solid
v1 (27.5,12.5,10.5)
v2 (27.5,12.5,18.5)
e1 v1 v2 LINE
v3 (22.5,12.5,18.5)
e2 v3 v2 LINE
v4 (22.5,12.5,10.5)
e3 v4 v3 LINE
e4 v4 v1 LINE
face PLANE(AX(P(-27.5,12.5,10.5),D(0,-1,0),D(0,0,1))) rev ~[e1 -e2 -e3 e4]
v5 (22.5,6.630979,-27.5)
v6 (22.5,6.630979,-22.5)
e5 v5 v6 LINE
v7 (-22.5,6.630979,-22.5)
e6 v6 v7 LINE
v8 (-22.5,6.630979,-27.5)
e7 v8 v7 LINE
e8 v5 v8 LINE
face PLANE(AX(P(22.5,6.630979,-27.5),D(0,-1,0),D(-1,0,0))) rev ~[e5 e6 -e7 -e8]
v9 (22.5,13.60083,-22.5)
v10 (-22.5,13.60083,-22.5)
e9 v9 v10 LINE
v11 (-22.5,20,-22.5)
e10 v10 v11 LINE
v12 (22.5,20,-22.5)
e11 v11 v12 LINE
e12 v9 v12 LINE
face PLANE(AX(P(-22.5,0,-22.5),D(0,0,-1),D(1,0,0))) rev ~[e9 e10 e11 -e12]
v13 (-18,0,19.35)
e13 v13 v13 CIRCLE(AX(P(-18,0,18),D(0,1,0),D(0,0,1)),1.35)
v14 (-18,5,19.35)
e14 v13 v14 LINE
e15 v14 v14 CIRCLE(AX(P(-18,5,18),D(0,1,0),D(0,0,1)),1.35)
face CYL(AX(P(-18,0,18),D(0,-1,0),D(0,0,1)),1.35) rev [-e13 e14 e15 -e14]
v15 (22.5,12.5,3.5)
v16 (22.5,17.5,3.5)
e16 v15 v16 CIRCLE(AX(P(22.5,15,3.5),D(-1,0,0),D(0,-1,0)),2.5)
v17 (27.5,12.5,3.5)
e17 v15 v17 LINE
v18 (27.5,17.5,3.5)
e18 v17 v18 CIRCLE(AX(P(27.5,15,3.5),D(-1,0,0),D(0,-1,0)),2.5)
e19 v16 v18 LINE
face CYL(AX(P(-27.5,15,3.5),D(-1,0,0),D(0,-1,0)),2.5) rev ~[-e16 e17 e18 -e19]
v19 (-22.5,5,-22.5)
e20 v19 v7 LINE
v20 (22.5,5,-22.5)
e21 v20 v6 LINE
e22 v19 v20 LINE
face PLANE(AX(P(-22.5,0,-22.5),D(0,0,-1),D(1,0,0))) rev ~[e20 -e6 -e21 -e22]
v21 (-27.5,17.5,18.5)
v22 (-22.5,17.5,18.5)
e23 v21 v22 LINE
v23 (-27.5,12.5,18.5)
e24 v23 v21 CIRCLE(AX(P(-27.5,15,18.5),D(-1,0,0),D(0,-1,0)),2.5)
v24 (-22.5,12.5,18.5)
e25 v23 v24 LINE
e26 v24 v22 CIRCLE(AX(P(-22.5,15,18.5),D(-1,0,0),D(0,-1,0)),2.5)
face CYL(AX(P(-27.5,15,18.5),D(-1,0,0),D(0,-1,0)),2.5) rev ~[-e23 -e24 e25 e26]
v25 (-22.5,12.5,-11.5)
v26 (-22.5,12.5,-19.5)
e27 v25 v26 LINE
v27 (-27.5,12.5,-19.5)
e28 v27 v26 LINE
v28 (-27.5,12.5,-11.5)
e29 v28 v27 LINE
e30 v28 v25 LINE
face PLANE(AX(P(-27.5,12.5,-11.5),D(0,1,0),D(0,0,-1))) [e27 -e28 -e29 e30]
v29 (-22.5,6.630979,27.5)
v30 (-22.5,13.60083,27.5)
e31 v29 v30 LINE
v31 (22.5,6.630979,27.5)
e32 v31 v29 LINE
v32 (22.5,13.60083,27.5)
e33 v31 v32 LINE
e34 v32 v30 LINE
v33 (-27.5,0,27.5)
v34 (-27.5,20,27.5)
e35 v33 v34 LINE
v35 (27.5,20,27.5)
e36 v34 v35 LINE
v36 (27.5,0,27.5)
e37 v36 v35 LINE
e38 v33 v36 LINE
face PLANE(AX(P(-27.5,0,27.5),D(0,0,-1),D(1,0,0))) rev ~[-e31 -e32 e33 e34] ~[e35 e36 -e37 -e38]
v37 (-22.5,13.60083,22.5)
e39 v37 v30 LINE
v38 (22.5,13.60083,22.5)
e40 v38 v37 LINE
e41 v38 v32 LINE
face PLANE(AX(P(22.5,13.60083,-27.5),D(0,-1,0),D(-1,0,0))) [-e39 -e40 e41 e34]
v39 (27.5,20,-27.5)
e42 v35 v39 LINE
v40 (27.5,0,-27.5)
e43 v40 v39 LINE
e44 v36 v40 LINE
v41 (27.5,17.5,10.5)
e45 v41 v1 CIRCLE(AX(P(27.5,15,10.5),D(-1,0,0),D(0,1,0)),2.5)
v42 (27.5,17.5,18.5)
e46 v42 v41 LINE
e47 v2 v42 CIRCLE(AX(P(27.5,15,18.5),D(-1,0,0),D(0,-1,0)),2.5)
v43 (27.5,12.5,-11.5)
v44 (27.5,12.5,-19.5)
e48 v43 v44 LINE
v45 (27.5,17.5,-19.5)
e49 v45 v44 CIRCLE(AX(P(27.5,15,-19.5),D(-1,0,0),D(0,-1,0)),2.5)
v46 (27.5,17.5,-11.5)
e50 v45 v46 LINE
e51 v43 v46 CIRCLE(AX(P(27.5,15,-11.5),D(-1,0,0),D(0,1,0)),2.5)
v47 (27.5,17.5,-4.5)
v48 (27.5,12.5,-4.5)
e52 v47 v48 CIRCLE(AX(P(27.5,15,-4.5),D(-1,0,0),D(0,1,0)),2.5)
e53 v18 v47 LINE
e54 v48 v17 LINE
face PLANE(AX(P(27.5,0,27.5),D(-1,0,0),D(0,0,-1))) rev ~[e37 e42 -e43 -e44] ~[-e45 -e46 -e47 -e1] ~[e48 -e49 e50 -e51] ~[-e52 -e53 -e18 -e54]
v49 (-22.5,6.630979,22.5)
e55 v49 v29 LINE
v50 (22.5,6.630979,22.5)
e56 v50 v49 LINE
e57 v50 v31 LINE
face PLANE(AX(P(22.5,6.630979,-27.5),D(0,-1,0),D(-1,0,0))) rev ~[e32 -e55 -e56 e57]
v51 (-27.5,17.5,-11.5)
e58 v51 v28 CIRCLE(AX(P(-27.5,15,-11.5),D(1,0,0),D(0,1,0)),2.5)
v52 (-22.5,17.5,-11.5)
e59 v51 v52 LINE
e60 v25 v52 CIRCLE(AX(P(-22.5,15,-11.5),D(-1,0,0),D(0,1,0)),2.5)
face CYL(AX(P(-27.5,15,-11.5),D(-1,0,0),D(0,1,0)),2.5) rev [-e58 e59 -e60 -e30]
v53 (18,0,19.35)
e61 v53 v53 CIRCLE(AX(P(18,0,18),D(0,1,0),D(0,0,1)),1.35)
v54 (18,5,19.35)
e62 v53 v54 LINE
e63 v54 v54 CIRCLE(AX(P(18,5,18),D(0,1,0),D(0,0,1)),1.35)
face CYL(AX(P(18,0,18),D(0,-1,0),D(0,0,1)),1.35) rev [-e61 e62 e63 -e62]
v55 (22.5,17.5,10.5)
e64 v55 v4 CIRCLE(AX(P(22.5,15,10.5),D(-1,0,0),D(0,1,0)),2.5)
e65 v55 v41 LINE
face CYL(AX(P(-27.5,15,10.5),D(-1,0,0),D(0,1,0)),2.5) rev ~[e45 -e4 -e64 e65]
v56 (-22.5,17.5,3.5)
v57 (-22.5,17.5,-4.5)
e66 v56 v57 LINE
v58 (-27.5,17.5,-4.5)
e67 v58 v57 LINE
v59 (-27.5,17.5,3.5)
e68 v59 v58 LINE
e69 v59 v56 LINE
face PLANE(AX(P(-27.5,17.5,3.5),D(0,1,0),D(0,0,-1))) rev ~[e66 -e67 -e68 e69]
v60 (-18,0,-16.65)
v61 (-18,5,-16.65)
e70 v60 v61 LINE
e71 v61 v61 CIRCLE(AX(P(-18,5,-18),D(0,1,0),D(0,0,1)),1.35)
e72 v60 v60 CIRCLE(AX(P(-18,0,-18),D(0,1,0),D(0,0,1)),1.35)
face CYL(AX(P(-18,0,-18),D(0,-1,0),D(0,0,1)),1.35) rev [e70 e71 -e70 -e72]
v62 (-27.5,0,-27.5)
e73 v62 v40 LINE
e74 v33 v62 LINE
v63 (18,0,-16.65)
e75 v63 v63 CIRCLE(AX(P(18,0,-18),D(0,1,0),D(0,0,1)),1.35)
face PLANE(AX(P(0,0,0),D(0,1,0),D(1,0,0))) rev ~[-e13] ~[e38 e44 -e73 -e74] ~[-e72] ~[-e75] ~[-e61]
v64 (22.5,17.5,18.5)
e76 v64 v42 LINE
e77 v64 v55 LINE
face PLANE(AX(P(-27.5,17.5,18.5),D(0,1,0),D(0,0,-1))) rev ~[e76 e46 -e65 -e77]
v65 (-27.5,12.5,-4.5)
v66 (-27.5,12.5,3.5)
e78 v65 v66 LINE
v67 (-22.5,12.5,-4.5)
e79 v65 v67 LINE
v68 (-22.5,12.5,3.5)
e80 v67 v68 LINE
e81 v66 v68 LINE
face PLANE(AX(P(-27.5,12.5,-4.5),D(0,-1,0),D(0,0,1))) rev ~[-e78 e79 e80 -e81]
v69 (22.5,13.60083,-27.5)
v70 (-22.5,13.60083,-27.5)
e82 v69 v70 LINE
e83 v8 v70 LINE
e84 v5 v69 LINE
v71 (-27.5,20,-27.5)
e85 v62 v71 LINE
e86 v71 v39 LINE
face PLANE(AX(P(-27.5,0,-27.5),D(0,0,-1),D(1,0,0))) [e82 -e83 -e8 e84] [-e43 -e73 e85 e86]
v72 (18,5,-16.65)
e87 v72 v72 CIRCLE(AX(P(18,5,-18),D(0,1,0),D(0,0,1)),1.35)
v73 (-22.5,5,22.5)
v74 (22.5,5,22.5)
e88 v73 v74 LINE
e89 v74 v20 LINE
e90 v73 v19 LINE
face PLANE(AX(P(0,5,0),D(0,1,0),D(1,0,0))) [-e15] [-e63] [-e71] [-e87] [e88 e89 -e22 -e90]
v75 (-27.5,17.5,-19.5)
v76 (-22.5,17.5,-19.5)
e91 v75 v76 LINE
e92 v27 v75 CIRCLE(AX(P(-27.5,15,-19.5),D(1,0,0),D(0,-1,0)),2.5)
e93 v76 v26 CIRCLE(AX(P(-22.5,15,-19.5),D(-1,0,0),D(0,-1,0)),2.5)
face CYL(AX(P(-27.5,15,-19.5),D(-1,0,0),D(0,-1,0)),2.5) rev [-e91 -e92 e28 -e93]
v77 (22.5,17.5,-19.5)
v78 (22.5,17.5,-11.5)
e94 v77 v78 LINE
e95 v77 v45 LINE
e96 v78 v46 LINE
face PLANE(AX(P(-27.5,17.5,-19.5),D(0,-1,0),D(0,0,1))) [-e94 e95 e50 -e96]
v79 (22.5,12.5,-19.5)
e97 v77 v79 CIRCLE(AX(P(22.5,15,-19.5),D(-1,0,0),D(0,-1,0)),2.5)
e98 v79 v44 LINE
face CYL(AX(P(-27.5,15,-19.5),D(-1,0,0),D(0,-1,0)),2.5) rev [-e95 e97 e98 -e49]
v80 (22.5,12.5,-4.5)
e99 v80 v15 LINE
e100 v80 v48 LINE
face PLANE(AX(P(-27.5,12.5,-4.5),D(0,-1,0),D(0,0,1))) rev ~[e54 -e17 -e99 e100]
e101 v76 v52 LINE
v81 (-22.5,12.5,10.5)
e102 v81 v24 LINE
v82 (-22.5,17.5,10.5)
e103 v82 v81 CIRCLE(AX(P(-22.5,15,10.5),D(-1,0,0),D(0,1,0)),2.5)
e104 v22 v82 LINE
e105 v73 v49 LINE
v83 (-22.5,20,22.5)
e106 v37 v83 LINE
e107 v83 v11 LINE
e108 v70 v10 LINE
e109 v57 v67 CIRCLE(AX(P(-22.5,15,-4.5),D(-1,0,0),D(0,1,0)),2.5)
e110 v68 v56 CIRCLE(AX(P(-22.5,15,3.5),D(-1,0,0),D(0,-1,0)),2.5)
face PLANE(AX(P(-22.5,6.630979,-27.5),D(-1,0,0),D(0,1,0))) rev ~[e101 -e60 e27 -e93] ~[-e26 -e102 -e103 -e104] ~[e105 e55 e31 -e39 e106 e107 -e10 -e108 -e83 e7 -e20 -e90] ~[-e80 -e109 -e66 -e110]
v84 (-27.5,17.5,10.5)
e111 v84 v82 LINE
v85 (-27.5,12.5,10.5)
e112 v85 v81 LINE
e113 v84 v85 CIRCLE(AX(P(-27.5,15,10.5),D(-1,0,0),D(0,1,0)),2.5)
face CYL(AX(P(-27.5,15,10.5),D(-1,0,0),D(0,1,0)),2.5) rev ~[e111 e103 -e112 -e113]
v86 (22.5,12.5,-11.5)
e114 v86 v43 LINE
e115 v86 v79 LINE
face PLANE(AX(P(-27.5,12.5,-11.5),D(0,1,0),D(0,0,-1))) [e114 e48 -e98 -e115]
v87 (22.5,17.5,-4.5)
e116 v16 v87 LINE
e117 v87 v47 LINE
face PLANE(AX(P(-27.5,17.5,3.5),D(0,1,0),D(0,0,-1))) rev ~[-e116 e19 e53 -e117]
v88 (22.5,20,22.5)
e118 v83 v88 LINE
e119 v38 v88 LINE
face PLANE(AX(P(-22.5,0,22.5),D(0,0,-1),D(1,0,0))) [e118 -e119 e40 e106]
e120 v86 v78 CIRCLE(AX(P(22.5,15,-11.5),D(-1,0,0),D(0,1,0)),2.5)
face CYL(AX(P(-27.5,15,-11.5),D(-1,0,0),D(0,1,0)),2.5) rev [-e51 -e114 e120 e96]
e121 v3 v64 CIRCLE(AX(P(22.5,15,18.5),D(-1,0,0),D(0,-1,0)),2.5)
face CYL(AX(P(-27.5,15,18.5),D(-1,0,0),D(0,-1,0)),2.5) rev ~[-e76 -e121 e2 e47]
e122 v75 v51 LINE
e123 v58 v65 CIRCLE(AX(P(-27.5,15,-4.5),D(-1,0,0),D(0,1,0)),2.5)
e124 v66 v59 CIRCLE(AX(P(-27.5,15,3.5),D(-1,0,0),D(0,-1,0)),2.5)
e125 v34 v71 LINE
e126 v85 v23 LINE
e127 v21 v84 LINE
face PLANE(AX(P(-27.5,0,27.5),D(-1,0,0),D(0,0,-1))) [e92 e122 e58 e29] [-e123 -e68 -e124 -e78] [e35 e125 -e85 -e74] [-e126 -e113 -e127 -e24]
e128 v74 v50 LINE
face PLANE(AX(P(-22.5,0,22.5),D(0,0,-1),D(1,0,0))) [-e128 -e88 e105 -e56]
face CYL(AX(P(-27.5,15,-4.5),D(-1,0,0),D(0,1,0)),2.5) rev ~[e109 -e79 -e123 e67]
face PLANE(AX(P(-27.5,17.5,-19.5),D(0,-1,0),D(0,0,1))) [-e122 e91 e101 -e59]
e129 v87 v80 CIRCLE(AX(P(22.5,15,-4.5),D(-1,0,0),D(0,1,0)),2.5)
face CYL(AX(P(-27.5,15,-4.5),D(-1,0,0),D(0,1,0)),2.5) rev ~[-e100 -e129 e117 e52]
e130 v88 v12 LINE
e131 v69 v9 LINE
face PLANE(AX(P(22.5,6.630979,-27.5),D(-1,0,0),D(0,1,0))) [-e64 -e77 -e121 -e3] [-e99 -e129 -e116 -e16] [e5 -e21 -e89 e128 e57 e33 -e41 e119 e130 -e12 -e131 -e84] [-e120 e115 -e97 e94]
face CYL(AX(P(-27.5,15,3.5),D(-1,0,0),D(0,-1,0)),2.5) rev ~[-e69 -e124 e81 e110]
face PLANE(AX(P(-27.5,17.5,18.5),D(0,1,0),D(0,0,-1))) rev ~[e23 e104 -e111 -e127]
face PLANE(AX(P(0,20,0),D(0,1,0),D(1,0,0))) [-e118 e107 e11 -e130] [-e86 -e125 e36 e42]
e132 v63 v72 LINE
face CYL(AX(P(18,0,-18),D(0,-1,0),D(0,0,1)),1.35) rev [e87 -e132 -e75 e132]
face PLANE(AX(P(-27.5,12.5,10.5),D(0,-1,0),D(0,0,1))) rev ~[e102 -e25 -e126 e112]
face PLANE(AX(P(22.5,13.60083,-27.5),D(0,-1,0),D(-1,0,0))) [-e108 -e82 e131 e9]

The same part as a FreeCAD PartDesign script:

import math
import FreeCAD as App
import Part
import Sketcher

V = App.Vector
Q = App.Units.Quantity


def add_polygon(sketch, points):
    """Adds a closed chain of lines whose ends are joined by coincident constraints."""
    first, n = sketch.GeometryCount, len(points)
    for a, b in zip(points, points[1:] + points[:1]):
        sketch.addGeometry(Part.LineSegment(App.Vector(*a, 0), App.Vector(*b, 0)), False)
    for i in range(n):
        sketch.addConstraint(Sketcher.Constraint("Coincident", first + i, 2, first + (i + 1) % n, 1))

doc = App.newDocument("Part")
body = doc.addObject("PartDesign::Body", "Body")

sketch1 = body.newObject("Sketcher::SketchObject", "Sketch")
sketch1.AttachmentSupport = (doc.getObject("XZ_Plane"), [""])
sketch1.MapMode = "FlatFace"
add_polygon(sketch1, [(-22.5, -22.5), (-22.5, 22.5), (22.5, 22.5), (22.5, -22.5)])
sketch1.addGeometry(Part.Circle(V(-18, 18, 0), V(0, 0, 1), 1.4), False)
sketch1.addGeometry(Part.Circle(V(18, 18, 0), V(0, 0, 1), 1.4), False)
sketch1.addGeometry(Part.Circle(V(-18, -18, 0), V(0, 0, 1), 1.4), False)
sketch1.addGeometry(Part.Circle(V(18, -18, 0), V(0, 0, 1), 1.4), False)
sketch1.addConstraint(Sketcher.Constraint("Vertical", 0))
sketch1.addConstraint(Sketcher.Constraint("Horizontal", 1))
sketch1.addConstraint(Sketcher.Constraint("Vertical", 2))
sketch1.addConstraint(Sketcher.Constraint("Horizontal", 3))
sketch1.addConstraint(Sketcher.Constraint("Equal", 4, 5))
sketch1.addConstraint(Sketcher.Constraint("Equal", 5, 6))
sketch1.addConstraint(Sketcher.Constraint("Equal", 6, 7))
sketch1.addConstraint(Sketcher.Constraint("Symmetric", 5, 3, 6, 3, -1, 1))
sketch1.addConstraint(Sketcher.Constraint("Symmetric", 4, 3, 7, 3, -1, 1))
sketch1.addConstraint(Sketcher.Constraint("Symmetric", 0, 2, 2, 2, -1, 1))
sketch1.addConstraint(Sketcher.Constraint("Symmetric", 4, 3, 5, 3, -2))
sketch1.addConstraint(Sketcher.Constraint("Equal", 3, 0))
sketch1.addConstraint(Sketcher.Constraint("Diameter", 4, Q("2.7 mm")))
sketch1.addConstraint(Sketcher.Constraint("DistanceX", 1, 1, 1, 2, Q("45 mm")))
sketch1.addConstraint(Sketcher.Constraint("DistanceX", 4, 3, -1, 1, Q("18 mm")))
sketch1.addConstraint(Sketcher.Constraint("DistanceY", -1, 1, 4, 3, Q("18 mm")))
pad1 = body.newObject("PartDesign::Pad", "Pad")
pad1.Profile = sketch1
pad1.Length = 5
pad1.Reversed = True

sketch2 = body.newObject("Sketcher::SketchObject", "Sketch001")
sketch2.AttachmentSupport = (doc.getObject("XZ_Plane"), [""])
sketch2.MapMode = "FlatFace"
add_polygon(sketch2, [(-28, -28), (-28, 28), (28, 28), (28, -28)])
add_polygon(sketch2, [(22, 22), (-22, 22), (-22, -22), (22, -22)])
sketch2.addConstraint(Sketcher.Constraint("Vertical", 0))
sketch2.addConstraint(Sketcher.Constraint("Horizontal", 1))
sketch2.addConstraint(Sketcher.Constraint("Vertical", 2))
sketch2.addConstraint(Sketcher.Constraint("Horizontal", 3))
sketch2.addConstraint(Sketcher.Constraint("Horizontal", 4))
sketch2.addConstraint(Sketcher.Constraint("Vertical", 5))
sketch2.addConstraint(Sketcher.Constraint("Horizontal", 6))
sketch2.addConstraint(Sketcher.Constraint("Vertical", 7))
sketch2.addConstraint(Sketcher.Constraint("Symmetric", 0, 2, 2, 2, -1, 1))
sketch2.addConstraint(Sketcher.Constraint("Symmetric", 4, 2, 6, 2, -1, 1))
sketch2.addConstraint(Sketcher.Constraint("Equal", 3, 0))
sketch2.addConstraint(Sketcher.Constraint("Equal", 6, 5))
sketch2.addConstraint(Sketcher.Constraint("DistanceX", 1, 1, 1, 2, Q("55 mm")))
sketch2.addConstraint(Sketcher.Constraint("DistanceX", 4, 2, 4, 1, Q("45 mm")))
pad2 = body.newObject("PartDesign::Pad", "Pad001")
pad2.Profile = sketch2
pad2.Length = 20
pad2.Reversed = True

sketch3 = body.newObject("Sketcher::SketchObject", "Sketch002")
sketch3.AttachmentSupport = (doc.getObject("XY_Plane"), [""])
sketch3.MapMode = "FlatFace"
sketch3.AttachmentOffset = App.Placement(V(0, 0, -27.5), App.Rotation())
add_polygon(sketch3, [(22, 14), (22, 7), (-22, 7), (-22, 14)])
sketch3.addConstraint(Sketcher.Constraint("Vertical", 0))
sketch3.addConstraint(Sketcher.Constraint("Horizontal", 1))
sketch3.addConstraint(Sketcher.Constraint("Vertical", 2))
sketch3.addConstraint(Sketcher.Constraint("Horizontal", 3))
sketch3.addConstraint(Sketcher.Constraint("DistanceX", 1, 2, 1, 1, Q("45 mm")))
sketch3.addConstraint(Sketcher.Constraint("DistanceX", -1, 1, 0, 2, Q("22.5 mm")))
sketch3.addConstraint(Sketcher.Constraint("DistanceY", 0, 2, 0, 1, Q("6.969851 mm")))
sketch3.addConstraint(Sketcher.Constraint("DistanceY", -1, 1, 0, 2, Q("6.630979 mm")))
pocket1 = body.newObject("PartDesign::Pocket", "Pocket")
pocket1.Profile = sketch3
pocket1.Type = "ThroughAll"
pocket1.Reversed = True

sketch4 = body.newObject("Sketcher::SketchObject", "Sketch003")
sketch4.AttachmentSupport = (doc.getObject("YZ_Plane"), [""])
sketch4.MapMode = "FlatFace"
sketch4.AttachmentOffset = App.Placement(V(0, 0, -27.5), App.Rotation())
sketch4.addGeometry(Part.LineSegment(V(12.5, -19.5, 0), V(12.5, -11.5, 0)), False)
sketch4.addGeometry(Part.ArcOfCircle(Part.Circle(V(15, -11.5, 0), V(0, 0, 1), 2.5), math.radians(0), math.radians(180)), False)
sketch4.addGeometry(Part.LineSegment(V(17.5, -11.5, 0), V(17.5, -19.5, 0)), False)
sketch4.addGeometry(Part.ArcOfCircle(Part.Circle(V(15, -19.5, 0), V(0, 0, 1), 2.5), math.radians(180), math.radians(360)), False)
sketch4.addGeometry(Part.LineSegment(V(17.5, 3.5, 0), V(17.5, -4.5, 0)), False)
sketch4.addGeometry(Part.ArcOfCircle(Part.Circle(V(15, -4.5, 0), V(0, 0, 1), 2.5), math.radians(180), math.radians(360)), False)
sketch4.addGeometry(Part.LineSegment(V(12.5, -4.5, 0), V(12.5, 3.5, 0)), False)
sketch4.addGeometry(Part.ArcOfCircle(Part.Circle(V(15, 3.5, 0), V(0, 0, 1), 2.5), math.radians(0), math.radians(180)), False)
sketch4.addGeometry(Part.LineSegment(V(17.5, 18.5, 0), V(17.5, 10.5, 0)), False)
sketch4.addGeometry(Part.ArcOfCircle(Part.Circle(V(15, 10.5, 0), V(0, 0, 1), 2.5), math.radians(180), math.radians(360)), False)
sketch4.addGeometry(Part.LineSegment(V(12.5, 10.5, 0), V(12.5, 18.5, 0)), False)
sketch4.addGeometry(Part.ArcOfCircle(Part.Circle(V(15, 18.5, 0), V(0, 0, 1), 2.5), math.radians(0), math.radians(180)), False)
sketch4.addConstraint(Sketcher.Constraint("Tangent", 0, 2, 1, 2))
sketch4.addConstraint(Sketcher.Constraint("Tangent", 1, 1, 2, 1))
sketch4.addConstraint(Sketcher.Constraint("Tangent", 2, 2, 3, 2))
sketch4.addConstraint(Sketcher.Constraint("Tangent", 3, 1, 0, 1))
sketch4.addConstraint(Sketcher.Constraint("Tangent", 4, 2, 5, 2))
sketch4.addConstraint(Sketcher.Constraint("Tangent", 5, 1, 6, 1))
sketch4.addConstraint(Sketcher.Constraint("Tangent", 6, 2, 7, 2))
sketch4.addConstraint(Sketcher.Constraint("Tangent", 7, 1, 4, 1))
sketch4.addConstraint(Sketcher.Constraint("Tangent", 8, 2, 9, 2))
sketch4.addConstraint(Sketcher.Constraint("Tangent", 9, 1, 10, 1))
sketch4.addConstraint(Sketcher.Constraint("Tangent", 10, 2, 11, 2))
sketch4.addConstraint(Sketcher.Constraint("Tangent", 11, 1, 8, 1))
sketch4.addConstraint(Sketcher.Constraint("Vertical", 0))
sketch4.addConstraint(Sketcher.Constraint("Vertical", 2))
sketch4.addConstraint(Sketcher.Constraint("Vertical", 4))
sketch4.addConstraint(Sketcher.Constraint("Vertical", 6))
sketch4.addConstraint(Sketcher.Constraint("Vertical", 8))
sketch4.addConstraint(Sketcher.Constraint("Vertical", 10))
sketch4.addConstraint(Sketcher.Constraint("Equal", 3, 5))
sketch4.addConstraint(Sketcher.Constraint("Equal", 7, 9))
sketch4.addConstraint(Sketcher.Constraint("Vertical", 3, 3, 5, 3))
sketch4.addConstraint(Sketcher.Constraint("Vertical", 7, 3, 9, 3))
sketch4.addConstraint(Sketcher.Constraint("Equal", 2, 4))
sketch4.addConstraint(Sketcher.Constraint("Equal", 6, 8))
sketch4.addConstraint(Sketcher.Constraint("Radius", 1, Q("2.5 mm")))
sketch4.addConstraint(Sketcher.Constraint("DistanceY", 0, 1, 0, 2, Q("8 mm")))
sketch4.addConstraint(Sketcher.Constraint("DistanceX", -1, 1, 1, 3, Q("15 mm")))
sketch4.addConstraint(Sketcher.Constraint("DistanceY", 1, 3, 5, 3, Q("7 mm")))
sketch4.addConstraint(Sketcher.Constraint("DistanceY", 7, 3, 9, 3, Q("7 mm")))
sketch4.addConstraint(Sketcher.Constraint("DistanceY", 1, 3, -1, 1, Q("11.5 mm")))
pocket2 = body.newObject("PartDesign::Pocket", "Pocket001")
pocket2.Profile = sketch4
pocket2.Type = "ThroughAll"
pocket2.Reversed = True

sketch5 = body.newObject("Sketcher::SketchObject", "Sketch004")
sketch5.AttachmentSupport = (doc.getObject("XY_Plane"), [""])
sketch5.MapMode = "FlatFace"
sketch5.AttachmentOffset = App.Placement(V(0, 0, -30), App.Rotation())
sketch5.addGeometry(Part.LineSegment(V(-7.5, 33, 0), V(7.5, 33, 0)), False)
sketch5.addGeometry(Part.ArcOfCircle(Part.Circle(V(7.5, 30, 0), V(0, 0, 1), 3), math.radians(-90), math.radians(90)), False)
sketch5.addGeometry(Part.LineSegment(V(7.5, 27, 0), V(-7.5, 27, 0)), False)
sketch5.addGeometry(Part.ArcOfCircle(Part.Circle(V(-7.5, 30, 0), V(0, 0, 1), 3), math.radians(90), math.radians(270)), False)
sketch5.addConstraint(Sketcher.Constraint("Tangent", 0, 2, 1, 2))
sketch5.addConstraint(Sketcher.Constraint("Tangent", 1, 1, 2, 1))
sketch5.addConstraint(Sketcher.Constraint("Tangent", 2, 2, 3, 2))
sketch5.addConstraint(Sketcher.Constraint("Tangent", 3, 1, 0, 1))
sketch5.addConstraint(Sketcher.Constraint("Horizontal", 0))
sketch5.addConstraint(Sketcher.Constraint("Horizontal", 2))
sketch5.addConstraint(Sketcher.Constraint("Radius", 1, Q("3 mm")))
sketch5.addConstraint(Sketcher.Constraint("DistanceX", 0, 1, 0, 2, Q("15 mm")))
sketch5.addConstraint(Sketcher.Constraint("DistanceY", -1, 1, 1, 3, Q("30 mm")))
sketch5.addConstraint(Sketcher.Constraint("DistanceX", -1, 1, 1, 3, Q("7.5 mm")))
pocket3 = body.newObject("PartDesign::Pocket", "Pocket002")
pocket3.Profile = sketch5
pocket3.Type = "ThroughAll"
pocket3.Reversed = True

doc.recompute()
